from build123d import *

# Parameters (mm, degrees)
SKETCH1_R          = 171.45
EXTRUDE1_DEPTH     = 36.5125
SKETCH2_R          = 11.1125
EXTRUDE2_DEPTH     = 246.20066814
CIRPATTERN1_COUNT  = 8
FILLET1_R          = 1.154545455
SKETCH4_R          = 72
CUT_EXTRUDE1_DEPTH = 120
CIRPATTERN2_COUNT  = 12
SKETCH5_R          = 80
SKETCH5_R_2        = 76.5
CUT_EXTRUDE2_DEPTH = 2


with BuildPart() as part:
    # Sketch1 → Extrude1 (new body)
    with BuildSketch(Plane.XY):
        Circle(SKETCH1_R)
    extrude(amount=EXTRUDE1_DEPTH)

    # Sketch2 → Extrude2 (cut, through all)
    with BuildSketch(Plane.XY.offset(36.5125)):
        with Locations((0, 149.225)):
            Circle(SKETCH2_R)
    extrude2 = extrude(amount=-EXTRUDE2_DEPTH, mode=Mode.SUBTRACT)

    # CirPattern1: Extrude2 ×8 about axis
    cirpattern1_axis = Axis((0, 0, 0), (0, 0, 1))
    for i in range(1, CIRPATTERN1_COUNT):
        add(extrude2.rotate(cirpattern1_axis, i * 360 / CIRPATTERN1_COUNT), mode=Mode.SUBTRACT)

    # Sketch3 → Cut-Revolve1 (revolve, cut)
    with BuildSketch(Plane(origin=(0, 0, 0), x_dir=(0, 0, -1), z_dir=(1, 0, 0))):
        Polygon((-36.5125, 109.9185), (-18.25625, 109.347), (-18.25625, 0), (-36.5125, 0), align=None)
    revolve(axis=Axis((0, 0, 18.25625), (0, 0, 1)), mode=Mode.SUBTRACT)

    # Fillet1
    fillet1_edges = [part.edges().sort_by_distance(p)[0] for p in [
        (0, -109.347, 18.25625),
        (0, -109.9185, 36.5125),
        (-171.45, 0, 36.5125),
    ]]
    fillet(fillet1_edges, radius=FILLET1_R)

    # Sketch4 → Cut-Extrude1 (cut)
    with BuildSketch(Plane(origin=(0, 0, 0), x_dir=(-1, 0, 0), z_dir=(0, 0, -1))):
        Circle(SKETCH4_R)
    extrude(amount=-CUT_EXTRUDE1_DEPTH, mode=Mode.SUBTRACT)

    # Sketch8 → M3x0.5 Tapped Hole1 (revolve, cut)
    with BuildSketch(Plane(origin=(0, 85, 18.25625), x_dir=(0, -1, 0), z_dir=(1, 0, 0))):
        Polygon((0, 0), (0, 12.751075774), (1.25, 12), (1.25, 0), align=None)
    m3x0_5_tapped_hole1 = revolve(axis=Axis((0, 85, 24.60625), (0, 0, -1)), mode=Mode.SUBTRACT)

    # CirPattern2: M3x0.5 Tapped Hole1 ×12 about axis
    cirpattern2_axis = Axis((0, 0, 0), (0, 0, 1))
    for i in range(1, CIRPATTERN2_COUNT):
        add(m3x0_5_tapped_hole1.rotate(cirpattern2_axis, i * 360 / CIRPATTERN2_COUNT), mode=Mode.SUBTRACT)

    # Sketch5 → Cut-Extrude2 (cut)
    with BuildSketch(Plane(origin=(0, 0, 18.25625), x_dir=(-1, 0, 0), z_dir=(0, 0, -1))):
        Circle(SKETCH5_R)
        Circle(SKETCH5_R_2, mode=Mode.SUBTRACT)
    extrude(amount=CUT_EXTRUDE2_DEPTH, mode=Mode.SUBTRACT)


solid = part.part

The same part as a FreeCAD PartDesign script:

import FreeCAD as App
import Part
import Sketcher

V = App.Vector
Q = App.Units.Quantity


def edges_at(feature, points):
    """Names of the edges that pass closest to the given points."""
    edges = feature.Shape.Edges
    near = lambda p: min(range(len(edges)), key=lambda i: edges[i].distToShape(Part.Vertex(*p))[0])
    return sorted({f"Edge{near(p) + 1}" for p in points})

doc = App.newDocument("Part")
body = doc.addObject("PartDesign::Body", "Body")

sketch1 = body.newObject("Sketcher::SketchObject", "Sketch")
sketch1.AttachmentSupport = (doc.getObject("XY_Plane"), [""])
sketch1.MapMode = "FlatFace"
sketch1.addGeometry(Part.Circle(V(0, 0, 0), V(0, 0, 1), 171), False)
sketch1.addConstraint(Sketcher.Constraint("Coincident", 0, 3, -1, 1))
sketch1.addConstraint(Sketcher.Constraint("Diameter", 0, 342.9))
pad1 = body.newObject("PartDesign::Pad", "Pad")
pad1.Profile = sketch1
pad1.Length = 36.5125

sketch2 = body.newObject("Sketcher::SketchObject", "Sketch001")
sketch2.AttachmentSupport = (doc.getObject("XY_Plane"), [""])
sketch2.MapMode = "FlatFace"
sketch2.AttachmentOffset = App.Placement(V(0, 0, 36.5125), App.Rotation())
sketch2.addGeometry(Part.Circle(V(0, 149, 0), V(0, 0, 1), 11), False)
sketch2.addConstraint(Sketcher.Constraint("PointOnObject", 0, 3, -2))
sketch2.addConstraint(Sketcher.Constraint("Diameter", 0, 22.225))
sketch2.addConstraint(Sketcher.Constraint("DistanceY", -1, 1, 0, 3, 149.225))
pocket1 = body.newObject("PartDesign::Pocket", "Pocket")
pocket1.Profile = sketch2
pocket1.Type = "ThroughAll"
doc.recompute()

polarpattern = body.newObject("PartDesign::PolarPattern", "PolarPattern")
polarpattern.Originals = [pocket1]
polarpattern.Axis = (doc.getObject("Z_Axis"), [""])
polarpattern.Angle = 360
polarpattern.Occurrences = 8
body.Tip = polarpattern

sketch3 = body.newObject("Sketcher::SketchObject", "Sketch002")
sketch3.AttachmentSupport = (doc.getObject("YZ_Plane"), [""])
sketch3.MapMode = "FlatFace"
sketch3.addGeometry(Part.LineSegment(V(109, 18, 0), V(110, 37, 0)), False)
sketch3.addGeometry(Part.LineSegment(V(110, 37, 0), V(0, 37, 0)), False)
sketch3.addGeometry(Part.LineSegment(V(0, 37, 0), V(0, 18, 0)), False)
sketch3.addGeometry(Part.LineSegment(V(0, 18, 0), V(109, 18, 0)), False)
sketch3.addConstraint(Sketcher.Constraint("Coincident", 0, 2, 1, 1))
sketch3.addConstraint(Sketcher.Constraint("Coincident", 1, 2, 2, 1))
sketch3.addConstraint(Sketcher.Constraint("Coincident", 2, 2, 3, 1))
sketch3.addConstraint(Sketcher.Constraint("Coincident", 3, 2, 0, 1))
sketch3.addConstraint(Sketcher.Constraint("Horizontal", 1))
sketch3.addConstraint(Sketcher.Constraint("Vertical", 2))
sketch3.addConstraint(Sketcher.Constraint("Horizontal", 3))
sketch3.addConstraint(Sketcher.Constraint("PointOnObject", 1, 2, -2))
sketch3.addConstraint(Sketcher.Constraint("DistanceX", 3, 1, 3, 2, 109.347))
sketch3.addConstraint(Sketcher.Constraint("DistanceX", 1, 2, 1, 1, 109.9185))
sketch3.addConstraint(Sketcher.Constraint("DistanceY", 2, 2, 2, 1, 18.25625))
sketch3.addConstraint(Sketcher.Constraint("DistanceY", -1, 1, 0, 2, 36.5125))
groove = body.newObject("PartDesign::Groove", "Groove")
groove.Profile = sketch3
groove.ReferenceAxis = (sketch3, ["V_Axis"])
groove.Angle = 360
doc.recompute()

fillet = body.newObject("PartDesign::Fillet", "Fillet")
fillet.Base = (groove, edges_at(groove, [(0, -109.347, 18.256), (0, -109.918, 36.513), (-171.45, 0, 36.513)]))
fillet.Radius = 1.154545

sketch4 = body.newObject("Sketcher::SketchObject", "Sketch003")
sketch4.AttachmentSupport = (doc.getObject("XY_Plane"), [""])
sketch4.MapMode = "FlatFace"
sketch4.addGeometry(Part.Circle(V(0, 0, 0), V(0, 0, 1), 72), False)
sketch4.addConstraint(Sketcher.Constraint("Coincident", 0, 3, -1, 1))
sketch4.addConstraint(Sketcher.Constraint("Diameter", 0, 144.0))
pocket2 = body.newObject("PartDesign::Pocket", "Pocket001")
pocket2.Profile = sketch4
pocket2.Length = 120
pocket2.Reversed = True

sketch5 = body.newObject("Sketcher::SketchObject", "Sketch004")
sketch5.AttachmentSupport = (doc.getObject("YZ_Plane"), [""])
sketch5.MapMode = "FlatFace"
sketch5.addGeometry(Part.LineSegment(V(85, 5.5, 0), V(85, 18.3, 0)), False)
sketch5.addGeometry(Part.LineSegment(V(85, 18.3, 0), V(83.8, 18.3, 0)), False)
sketch5.addGeometry(Part.LineSegment(V(83.8, 18.3, 0), V(83.8, 6.3, 0)), False)
sketch5.addGeometry(Part.LineSegment(V(83.8, 6.3, 0), V(85, 5.5, 0)), False)
sketch5.addGeometry(Part.LineSegment(V(85, 18.3, 0), V(85, 5.5, 0)), True)
sketch5.addConstraint(Sketcher.Constraint("Coincident", 0, 2, 1, 1))
sketch5.addConstraint(Sketcher.Constraint("Coincident", 1, 2, 2, 1))
sketch5.addConstraint(Sketcher.Constraint("Coincident", 2, 2, 3, 1))
sketch5.addConstraint(Sketcher.Constraint("Coincident", 3, 2, 0, 1))
sketch5.addConstraint(Sketcher.Constraint("Vertical", 0))
sketch5.addConstraint(Sketcher.Constraint("Horizontal", 1))
sketch5.addConstraint(Sketcher.Constraint("Vertical", 2))
sketch5.addConstraint(Sketcher.Constraint("Vertical", 4))
sketch5.addConstraint(Sketcher.Constraint("Coincident", 4, 1, 0, 2))
sketch5.addConstraint(Sketcher.Constraint("Equal", 0, 4))
sketch5.addConstraint(Sketcher.Constraint("DistanceY", 2, 2, 2, 1, 12.0))
sketch5.addConstraint(Sketcher.Constraint("Angle", 3, Q("-31 deg")))
sketch5.addConstraint(Sketcher.Constraint("DistanceX", -1, 1, 0, 2, 85.0))
sketch5.addConstraint(Sketcher.Constraint("DistanceX", 1, 2, 1, 1, 1.25))
sketch5.addConstraint(Sketcher.Constraint("DistanceY", -1, 1, 0, 2, 18.25625))
groove2 = body.newObject("PartDesign::Groove", "Groove001")
groove2.Profile = sketch5
groove2.ReferenceAxis = (sketch5, ["Axis0"])
groove2.Angle = 360
doc.recompute()

polarpattern2 = body.newObject("PartDesign::PolarPattern", "PolarPattern001")
polarpattern2.Originals = [groove2]
polarpattern2.Axis = (doc.getObject("Z_Axis"), [""])
polarpattern2.Angle = 360
polarpattern2.Occurrences = 12
body.Tip = polarpattern2

sketch6 = body.newObject("Sketcher::SketchObject", "Sketch005")
sketch6.AttachmentSupport = (doc.getObject("XY_Plane"), [""])
sketch6.MapMode = "FlatFace"
sketch6.AttachmentOffset = App.Placement(V(0, 0, 18.25625), App.Rotation())
sketch6.addGeometry(Part.Circle(V(0, 0, 0), V(0, 0, 1), 80), False)
sketch6.addGeometry(Part.Circle(V(0, 0, 0), V(0, 0, 1), 76), False)
sketch6.addConstraint(Sketcher.Constraint("Coincident", 0, 3, -1, 1))
sketch6.addConstraint(Sketcher.Constraint("Coincident", 1, 3, -1, 1))
sketch6.addConstraint(Sketcher.Constraint("Diameter", 0, 160.0))
sketch6.addConstraint(Sketcher.Constraint("Diameter", 1, 153.0))
pocket3 = body.newObject("PartDesign::Pocket", "Pocket002")
pocket3.Profile = sketch6
pocket3.Length = 2

doc.recompute()
